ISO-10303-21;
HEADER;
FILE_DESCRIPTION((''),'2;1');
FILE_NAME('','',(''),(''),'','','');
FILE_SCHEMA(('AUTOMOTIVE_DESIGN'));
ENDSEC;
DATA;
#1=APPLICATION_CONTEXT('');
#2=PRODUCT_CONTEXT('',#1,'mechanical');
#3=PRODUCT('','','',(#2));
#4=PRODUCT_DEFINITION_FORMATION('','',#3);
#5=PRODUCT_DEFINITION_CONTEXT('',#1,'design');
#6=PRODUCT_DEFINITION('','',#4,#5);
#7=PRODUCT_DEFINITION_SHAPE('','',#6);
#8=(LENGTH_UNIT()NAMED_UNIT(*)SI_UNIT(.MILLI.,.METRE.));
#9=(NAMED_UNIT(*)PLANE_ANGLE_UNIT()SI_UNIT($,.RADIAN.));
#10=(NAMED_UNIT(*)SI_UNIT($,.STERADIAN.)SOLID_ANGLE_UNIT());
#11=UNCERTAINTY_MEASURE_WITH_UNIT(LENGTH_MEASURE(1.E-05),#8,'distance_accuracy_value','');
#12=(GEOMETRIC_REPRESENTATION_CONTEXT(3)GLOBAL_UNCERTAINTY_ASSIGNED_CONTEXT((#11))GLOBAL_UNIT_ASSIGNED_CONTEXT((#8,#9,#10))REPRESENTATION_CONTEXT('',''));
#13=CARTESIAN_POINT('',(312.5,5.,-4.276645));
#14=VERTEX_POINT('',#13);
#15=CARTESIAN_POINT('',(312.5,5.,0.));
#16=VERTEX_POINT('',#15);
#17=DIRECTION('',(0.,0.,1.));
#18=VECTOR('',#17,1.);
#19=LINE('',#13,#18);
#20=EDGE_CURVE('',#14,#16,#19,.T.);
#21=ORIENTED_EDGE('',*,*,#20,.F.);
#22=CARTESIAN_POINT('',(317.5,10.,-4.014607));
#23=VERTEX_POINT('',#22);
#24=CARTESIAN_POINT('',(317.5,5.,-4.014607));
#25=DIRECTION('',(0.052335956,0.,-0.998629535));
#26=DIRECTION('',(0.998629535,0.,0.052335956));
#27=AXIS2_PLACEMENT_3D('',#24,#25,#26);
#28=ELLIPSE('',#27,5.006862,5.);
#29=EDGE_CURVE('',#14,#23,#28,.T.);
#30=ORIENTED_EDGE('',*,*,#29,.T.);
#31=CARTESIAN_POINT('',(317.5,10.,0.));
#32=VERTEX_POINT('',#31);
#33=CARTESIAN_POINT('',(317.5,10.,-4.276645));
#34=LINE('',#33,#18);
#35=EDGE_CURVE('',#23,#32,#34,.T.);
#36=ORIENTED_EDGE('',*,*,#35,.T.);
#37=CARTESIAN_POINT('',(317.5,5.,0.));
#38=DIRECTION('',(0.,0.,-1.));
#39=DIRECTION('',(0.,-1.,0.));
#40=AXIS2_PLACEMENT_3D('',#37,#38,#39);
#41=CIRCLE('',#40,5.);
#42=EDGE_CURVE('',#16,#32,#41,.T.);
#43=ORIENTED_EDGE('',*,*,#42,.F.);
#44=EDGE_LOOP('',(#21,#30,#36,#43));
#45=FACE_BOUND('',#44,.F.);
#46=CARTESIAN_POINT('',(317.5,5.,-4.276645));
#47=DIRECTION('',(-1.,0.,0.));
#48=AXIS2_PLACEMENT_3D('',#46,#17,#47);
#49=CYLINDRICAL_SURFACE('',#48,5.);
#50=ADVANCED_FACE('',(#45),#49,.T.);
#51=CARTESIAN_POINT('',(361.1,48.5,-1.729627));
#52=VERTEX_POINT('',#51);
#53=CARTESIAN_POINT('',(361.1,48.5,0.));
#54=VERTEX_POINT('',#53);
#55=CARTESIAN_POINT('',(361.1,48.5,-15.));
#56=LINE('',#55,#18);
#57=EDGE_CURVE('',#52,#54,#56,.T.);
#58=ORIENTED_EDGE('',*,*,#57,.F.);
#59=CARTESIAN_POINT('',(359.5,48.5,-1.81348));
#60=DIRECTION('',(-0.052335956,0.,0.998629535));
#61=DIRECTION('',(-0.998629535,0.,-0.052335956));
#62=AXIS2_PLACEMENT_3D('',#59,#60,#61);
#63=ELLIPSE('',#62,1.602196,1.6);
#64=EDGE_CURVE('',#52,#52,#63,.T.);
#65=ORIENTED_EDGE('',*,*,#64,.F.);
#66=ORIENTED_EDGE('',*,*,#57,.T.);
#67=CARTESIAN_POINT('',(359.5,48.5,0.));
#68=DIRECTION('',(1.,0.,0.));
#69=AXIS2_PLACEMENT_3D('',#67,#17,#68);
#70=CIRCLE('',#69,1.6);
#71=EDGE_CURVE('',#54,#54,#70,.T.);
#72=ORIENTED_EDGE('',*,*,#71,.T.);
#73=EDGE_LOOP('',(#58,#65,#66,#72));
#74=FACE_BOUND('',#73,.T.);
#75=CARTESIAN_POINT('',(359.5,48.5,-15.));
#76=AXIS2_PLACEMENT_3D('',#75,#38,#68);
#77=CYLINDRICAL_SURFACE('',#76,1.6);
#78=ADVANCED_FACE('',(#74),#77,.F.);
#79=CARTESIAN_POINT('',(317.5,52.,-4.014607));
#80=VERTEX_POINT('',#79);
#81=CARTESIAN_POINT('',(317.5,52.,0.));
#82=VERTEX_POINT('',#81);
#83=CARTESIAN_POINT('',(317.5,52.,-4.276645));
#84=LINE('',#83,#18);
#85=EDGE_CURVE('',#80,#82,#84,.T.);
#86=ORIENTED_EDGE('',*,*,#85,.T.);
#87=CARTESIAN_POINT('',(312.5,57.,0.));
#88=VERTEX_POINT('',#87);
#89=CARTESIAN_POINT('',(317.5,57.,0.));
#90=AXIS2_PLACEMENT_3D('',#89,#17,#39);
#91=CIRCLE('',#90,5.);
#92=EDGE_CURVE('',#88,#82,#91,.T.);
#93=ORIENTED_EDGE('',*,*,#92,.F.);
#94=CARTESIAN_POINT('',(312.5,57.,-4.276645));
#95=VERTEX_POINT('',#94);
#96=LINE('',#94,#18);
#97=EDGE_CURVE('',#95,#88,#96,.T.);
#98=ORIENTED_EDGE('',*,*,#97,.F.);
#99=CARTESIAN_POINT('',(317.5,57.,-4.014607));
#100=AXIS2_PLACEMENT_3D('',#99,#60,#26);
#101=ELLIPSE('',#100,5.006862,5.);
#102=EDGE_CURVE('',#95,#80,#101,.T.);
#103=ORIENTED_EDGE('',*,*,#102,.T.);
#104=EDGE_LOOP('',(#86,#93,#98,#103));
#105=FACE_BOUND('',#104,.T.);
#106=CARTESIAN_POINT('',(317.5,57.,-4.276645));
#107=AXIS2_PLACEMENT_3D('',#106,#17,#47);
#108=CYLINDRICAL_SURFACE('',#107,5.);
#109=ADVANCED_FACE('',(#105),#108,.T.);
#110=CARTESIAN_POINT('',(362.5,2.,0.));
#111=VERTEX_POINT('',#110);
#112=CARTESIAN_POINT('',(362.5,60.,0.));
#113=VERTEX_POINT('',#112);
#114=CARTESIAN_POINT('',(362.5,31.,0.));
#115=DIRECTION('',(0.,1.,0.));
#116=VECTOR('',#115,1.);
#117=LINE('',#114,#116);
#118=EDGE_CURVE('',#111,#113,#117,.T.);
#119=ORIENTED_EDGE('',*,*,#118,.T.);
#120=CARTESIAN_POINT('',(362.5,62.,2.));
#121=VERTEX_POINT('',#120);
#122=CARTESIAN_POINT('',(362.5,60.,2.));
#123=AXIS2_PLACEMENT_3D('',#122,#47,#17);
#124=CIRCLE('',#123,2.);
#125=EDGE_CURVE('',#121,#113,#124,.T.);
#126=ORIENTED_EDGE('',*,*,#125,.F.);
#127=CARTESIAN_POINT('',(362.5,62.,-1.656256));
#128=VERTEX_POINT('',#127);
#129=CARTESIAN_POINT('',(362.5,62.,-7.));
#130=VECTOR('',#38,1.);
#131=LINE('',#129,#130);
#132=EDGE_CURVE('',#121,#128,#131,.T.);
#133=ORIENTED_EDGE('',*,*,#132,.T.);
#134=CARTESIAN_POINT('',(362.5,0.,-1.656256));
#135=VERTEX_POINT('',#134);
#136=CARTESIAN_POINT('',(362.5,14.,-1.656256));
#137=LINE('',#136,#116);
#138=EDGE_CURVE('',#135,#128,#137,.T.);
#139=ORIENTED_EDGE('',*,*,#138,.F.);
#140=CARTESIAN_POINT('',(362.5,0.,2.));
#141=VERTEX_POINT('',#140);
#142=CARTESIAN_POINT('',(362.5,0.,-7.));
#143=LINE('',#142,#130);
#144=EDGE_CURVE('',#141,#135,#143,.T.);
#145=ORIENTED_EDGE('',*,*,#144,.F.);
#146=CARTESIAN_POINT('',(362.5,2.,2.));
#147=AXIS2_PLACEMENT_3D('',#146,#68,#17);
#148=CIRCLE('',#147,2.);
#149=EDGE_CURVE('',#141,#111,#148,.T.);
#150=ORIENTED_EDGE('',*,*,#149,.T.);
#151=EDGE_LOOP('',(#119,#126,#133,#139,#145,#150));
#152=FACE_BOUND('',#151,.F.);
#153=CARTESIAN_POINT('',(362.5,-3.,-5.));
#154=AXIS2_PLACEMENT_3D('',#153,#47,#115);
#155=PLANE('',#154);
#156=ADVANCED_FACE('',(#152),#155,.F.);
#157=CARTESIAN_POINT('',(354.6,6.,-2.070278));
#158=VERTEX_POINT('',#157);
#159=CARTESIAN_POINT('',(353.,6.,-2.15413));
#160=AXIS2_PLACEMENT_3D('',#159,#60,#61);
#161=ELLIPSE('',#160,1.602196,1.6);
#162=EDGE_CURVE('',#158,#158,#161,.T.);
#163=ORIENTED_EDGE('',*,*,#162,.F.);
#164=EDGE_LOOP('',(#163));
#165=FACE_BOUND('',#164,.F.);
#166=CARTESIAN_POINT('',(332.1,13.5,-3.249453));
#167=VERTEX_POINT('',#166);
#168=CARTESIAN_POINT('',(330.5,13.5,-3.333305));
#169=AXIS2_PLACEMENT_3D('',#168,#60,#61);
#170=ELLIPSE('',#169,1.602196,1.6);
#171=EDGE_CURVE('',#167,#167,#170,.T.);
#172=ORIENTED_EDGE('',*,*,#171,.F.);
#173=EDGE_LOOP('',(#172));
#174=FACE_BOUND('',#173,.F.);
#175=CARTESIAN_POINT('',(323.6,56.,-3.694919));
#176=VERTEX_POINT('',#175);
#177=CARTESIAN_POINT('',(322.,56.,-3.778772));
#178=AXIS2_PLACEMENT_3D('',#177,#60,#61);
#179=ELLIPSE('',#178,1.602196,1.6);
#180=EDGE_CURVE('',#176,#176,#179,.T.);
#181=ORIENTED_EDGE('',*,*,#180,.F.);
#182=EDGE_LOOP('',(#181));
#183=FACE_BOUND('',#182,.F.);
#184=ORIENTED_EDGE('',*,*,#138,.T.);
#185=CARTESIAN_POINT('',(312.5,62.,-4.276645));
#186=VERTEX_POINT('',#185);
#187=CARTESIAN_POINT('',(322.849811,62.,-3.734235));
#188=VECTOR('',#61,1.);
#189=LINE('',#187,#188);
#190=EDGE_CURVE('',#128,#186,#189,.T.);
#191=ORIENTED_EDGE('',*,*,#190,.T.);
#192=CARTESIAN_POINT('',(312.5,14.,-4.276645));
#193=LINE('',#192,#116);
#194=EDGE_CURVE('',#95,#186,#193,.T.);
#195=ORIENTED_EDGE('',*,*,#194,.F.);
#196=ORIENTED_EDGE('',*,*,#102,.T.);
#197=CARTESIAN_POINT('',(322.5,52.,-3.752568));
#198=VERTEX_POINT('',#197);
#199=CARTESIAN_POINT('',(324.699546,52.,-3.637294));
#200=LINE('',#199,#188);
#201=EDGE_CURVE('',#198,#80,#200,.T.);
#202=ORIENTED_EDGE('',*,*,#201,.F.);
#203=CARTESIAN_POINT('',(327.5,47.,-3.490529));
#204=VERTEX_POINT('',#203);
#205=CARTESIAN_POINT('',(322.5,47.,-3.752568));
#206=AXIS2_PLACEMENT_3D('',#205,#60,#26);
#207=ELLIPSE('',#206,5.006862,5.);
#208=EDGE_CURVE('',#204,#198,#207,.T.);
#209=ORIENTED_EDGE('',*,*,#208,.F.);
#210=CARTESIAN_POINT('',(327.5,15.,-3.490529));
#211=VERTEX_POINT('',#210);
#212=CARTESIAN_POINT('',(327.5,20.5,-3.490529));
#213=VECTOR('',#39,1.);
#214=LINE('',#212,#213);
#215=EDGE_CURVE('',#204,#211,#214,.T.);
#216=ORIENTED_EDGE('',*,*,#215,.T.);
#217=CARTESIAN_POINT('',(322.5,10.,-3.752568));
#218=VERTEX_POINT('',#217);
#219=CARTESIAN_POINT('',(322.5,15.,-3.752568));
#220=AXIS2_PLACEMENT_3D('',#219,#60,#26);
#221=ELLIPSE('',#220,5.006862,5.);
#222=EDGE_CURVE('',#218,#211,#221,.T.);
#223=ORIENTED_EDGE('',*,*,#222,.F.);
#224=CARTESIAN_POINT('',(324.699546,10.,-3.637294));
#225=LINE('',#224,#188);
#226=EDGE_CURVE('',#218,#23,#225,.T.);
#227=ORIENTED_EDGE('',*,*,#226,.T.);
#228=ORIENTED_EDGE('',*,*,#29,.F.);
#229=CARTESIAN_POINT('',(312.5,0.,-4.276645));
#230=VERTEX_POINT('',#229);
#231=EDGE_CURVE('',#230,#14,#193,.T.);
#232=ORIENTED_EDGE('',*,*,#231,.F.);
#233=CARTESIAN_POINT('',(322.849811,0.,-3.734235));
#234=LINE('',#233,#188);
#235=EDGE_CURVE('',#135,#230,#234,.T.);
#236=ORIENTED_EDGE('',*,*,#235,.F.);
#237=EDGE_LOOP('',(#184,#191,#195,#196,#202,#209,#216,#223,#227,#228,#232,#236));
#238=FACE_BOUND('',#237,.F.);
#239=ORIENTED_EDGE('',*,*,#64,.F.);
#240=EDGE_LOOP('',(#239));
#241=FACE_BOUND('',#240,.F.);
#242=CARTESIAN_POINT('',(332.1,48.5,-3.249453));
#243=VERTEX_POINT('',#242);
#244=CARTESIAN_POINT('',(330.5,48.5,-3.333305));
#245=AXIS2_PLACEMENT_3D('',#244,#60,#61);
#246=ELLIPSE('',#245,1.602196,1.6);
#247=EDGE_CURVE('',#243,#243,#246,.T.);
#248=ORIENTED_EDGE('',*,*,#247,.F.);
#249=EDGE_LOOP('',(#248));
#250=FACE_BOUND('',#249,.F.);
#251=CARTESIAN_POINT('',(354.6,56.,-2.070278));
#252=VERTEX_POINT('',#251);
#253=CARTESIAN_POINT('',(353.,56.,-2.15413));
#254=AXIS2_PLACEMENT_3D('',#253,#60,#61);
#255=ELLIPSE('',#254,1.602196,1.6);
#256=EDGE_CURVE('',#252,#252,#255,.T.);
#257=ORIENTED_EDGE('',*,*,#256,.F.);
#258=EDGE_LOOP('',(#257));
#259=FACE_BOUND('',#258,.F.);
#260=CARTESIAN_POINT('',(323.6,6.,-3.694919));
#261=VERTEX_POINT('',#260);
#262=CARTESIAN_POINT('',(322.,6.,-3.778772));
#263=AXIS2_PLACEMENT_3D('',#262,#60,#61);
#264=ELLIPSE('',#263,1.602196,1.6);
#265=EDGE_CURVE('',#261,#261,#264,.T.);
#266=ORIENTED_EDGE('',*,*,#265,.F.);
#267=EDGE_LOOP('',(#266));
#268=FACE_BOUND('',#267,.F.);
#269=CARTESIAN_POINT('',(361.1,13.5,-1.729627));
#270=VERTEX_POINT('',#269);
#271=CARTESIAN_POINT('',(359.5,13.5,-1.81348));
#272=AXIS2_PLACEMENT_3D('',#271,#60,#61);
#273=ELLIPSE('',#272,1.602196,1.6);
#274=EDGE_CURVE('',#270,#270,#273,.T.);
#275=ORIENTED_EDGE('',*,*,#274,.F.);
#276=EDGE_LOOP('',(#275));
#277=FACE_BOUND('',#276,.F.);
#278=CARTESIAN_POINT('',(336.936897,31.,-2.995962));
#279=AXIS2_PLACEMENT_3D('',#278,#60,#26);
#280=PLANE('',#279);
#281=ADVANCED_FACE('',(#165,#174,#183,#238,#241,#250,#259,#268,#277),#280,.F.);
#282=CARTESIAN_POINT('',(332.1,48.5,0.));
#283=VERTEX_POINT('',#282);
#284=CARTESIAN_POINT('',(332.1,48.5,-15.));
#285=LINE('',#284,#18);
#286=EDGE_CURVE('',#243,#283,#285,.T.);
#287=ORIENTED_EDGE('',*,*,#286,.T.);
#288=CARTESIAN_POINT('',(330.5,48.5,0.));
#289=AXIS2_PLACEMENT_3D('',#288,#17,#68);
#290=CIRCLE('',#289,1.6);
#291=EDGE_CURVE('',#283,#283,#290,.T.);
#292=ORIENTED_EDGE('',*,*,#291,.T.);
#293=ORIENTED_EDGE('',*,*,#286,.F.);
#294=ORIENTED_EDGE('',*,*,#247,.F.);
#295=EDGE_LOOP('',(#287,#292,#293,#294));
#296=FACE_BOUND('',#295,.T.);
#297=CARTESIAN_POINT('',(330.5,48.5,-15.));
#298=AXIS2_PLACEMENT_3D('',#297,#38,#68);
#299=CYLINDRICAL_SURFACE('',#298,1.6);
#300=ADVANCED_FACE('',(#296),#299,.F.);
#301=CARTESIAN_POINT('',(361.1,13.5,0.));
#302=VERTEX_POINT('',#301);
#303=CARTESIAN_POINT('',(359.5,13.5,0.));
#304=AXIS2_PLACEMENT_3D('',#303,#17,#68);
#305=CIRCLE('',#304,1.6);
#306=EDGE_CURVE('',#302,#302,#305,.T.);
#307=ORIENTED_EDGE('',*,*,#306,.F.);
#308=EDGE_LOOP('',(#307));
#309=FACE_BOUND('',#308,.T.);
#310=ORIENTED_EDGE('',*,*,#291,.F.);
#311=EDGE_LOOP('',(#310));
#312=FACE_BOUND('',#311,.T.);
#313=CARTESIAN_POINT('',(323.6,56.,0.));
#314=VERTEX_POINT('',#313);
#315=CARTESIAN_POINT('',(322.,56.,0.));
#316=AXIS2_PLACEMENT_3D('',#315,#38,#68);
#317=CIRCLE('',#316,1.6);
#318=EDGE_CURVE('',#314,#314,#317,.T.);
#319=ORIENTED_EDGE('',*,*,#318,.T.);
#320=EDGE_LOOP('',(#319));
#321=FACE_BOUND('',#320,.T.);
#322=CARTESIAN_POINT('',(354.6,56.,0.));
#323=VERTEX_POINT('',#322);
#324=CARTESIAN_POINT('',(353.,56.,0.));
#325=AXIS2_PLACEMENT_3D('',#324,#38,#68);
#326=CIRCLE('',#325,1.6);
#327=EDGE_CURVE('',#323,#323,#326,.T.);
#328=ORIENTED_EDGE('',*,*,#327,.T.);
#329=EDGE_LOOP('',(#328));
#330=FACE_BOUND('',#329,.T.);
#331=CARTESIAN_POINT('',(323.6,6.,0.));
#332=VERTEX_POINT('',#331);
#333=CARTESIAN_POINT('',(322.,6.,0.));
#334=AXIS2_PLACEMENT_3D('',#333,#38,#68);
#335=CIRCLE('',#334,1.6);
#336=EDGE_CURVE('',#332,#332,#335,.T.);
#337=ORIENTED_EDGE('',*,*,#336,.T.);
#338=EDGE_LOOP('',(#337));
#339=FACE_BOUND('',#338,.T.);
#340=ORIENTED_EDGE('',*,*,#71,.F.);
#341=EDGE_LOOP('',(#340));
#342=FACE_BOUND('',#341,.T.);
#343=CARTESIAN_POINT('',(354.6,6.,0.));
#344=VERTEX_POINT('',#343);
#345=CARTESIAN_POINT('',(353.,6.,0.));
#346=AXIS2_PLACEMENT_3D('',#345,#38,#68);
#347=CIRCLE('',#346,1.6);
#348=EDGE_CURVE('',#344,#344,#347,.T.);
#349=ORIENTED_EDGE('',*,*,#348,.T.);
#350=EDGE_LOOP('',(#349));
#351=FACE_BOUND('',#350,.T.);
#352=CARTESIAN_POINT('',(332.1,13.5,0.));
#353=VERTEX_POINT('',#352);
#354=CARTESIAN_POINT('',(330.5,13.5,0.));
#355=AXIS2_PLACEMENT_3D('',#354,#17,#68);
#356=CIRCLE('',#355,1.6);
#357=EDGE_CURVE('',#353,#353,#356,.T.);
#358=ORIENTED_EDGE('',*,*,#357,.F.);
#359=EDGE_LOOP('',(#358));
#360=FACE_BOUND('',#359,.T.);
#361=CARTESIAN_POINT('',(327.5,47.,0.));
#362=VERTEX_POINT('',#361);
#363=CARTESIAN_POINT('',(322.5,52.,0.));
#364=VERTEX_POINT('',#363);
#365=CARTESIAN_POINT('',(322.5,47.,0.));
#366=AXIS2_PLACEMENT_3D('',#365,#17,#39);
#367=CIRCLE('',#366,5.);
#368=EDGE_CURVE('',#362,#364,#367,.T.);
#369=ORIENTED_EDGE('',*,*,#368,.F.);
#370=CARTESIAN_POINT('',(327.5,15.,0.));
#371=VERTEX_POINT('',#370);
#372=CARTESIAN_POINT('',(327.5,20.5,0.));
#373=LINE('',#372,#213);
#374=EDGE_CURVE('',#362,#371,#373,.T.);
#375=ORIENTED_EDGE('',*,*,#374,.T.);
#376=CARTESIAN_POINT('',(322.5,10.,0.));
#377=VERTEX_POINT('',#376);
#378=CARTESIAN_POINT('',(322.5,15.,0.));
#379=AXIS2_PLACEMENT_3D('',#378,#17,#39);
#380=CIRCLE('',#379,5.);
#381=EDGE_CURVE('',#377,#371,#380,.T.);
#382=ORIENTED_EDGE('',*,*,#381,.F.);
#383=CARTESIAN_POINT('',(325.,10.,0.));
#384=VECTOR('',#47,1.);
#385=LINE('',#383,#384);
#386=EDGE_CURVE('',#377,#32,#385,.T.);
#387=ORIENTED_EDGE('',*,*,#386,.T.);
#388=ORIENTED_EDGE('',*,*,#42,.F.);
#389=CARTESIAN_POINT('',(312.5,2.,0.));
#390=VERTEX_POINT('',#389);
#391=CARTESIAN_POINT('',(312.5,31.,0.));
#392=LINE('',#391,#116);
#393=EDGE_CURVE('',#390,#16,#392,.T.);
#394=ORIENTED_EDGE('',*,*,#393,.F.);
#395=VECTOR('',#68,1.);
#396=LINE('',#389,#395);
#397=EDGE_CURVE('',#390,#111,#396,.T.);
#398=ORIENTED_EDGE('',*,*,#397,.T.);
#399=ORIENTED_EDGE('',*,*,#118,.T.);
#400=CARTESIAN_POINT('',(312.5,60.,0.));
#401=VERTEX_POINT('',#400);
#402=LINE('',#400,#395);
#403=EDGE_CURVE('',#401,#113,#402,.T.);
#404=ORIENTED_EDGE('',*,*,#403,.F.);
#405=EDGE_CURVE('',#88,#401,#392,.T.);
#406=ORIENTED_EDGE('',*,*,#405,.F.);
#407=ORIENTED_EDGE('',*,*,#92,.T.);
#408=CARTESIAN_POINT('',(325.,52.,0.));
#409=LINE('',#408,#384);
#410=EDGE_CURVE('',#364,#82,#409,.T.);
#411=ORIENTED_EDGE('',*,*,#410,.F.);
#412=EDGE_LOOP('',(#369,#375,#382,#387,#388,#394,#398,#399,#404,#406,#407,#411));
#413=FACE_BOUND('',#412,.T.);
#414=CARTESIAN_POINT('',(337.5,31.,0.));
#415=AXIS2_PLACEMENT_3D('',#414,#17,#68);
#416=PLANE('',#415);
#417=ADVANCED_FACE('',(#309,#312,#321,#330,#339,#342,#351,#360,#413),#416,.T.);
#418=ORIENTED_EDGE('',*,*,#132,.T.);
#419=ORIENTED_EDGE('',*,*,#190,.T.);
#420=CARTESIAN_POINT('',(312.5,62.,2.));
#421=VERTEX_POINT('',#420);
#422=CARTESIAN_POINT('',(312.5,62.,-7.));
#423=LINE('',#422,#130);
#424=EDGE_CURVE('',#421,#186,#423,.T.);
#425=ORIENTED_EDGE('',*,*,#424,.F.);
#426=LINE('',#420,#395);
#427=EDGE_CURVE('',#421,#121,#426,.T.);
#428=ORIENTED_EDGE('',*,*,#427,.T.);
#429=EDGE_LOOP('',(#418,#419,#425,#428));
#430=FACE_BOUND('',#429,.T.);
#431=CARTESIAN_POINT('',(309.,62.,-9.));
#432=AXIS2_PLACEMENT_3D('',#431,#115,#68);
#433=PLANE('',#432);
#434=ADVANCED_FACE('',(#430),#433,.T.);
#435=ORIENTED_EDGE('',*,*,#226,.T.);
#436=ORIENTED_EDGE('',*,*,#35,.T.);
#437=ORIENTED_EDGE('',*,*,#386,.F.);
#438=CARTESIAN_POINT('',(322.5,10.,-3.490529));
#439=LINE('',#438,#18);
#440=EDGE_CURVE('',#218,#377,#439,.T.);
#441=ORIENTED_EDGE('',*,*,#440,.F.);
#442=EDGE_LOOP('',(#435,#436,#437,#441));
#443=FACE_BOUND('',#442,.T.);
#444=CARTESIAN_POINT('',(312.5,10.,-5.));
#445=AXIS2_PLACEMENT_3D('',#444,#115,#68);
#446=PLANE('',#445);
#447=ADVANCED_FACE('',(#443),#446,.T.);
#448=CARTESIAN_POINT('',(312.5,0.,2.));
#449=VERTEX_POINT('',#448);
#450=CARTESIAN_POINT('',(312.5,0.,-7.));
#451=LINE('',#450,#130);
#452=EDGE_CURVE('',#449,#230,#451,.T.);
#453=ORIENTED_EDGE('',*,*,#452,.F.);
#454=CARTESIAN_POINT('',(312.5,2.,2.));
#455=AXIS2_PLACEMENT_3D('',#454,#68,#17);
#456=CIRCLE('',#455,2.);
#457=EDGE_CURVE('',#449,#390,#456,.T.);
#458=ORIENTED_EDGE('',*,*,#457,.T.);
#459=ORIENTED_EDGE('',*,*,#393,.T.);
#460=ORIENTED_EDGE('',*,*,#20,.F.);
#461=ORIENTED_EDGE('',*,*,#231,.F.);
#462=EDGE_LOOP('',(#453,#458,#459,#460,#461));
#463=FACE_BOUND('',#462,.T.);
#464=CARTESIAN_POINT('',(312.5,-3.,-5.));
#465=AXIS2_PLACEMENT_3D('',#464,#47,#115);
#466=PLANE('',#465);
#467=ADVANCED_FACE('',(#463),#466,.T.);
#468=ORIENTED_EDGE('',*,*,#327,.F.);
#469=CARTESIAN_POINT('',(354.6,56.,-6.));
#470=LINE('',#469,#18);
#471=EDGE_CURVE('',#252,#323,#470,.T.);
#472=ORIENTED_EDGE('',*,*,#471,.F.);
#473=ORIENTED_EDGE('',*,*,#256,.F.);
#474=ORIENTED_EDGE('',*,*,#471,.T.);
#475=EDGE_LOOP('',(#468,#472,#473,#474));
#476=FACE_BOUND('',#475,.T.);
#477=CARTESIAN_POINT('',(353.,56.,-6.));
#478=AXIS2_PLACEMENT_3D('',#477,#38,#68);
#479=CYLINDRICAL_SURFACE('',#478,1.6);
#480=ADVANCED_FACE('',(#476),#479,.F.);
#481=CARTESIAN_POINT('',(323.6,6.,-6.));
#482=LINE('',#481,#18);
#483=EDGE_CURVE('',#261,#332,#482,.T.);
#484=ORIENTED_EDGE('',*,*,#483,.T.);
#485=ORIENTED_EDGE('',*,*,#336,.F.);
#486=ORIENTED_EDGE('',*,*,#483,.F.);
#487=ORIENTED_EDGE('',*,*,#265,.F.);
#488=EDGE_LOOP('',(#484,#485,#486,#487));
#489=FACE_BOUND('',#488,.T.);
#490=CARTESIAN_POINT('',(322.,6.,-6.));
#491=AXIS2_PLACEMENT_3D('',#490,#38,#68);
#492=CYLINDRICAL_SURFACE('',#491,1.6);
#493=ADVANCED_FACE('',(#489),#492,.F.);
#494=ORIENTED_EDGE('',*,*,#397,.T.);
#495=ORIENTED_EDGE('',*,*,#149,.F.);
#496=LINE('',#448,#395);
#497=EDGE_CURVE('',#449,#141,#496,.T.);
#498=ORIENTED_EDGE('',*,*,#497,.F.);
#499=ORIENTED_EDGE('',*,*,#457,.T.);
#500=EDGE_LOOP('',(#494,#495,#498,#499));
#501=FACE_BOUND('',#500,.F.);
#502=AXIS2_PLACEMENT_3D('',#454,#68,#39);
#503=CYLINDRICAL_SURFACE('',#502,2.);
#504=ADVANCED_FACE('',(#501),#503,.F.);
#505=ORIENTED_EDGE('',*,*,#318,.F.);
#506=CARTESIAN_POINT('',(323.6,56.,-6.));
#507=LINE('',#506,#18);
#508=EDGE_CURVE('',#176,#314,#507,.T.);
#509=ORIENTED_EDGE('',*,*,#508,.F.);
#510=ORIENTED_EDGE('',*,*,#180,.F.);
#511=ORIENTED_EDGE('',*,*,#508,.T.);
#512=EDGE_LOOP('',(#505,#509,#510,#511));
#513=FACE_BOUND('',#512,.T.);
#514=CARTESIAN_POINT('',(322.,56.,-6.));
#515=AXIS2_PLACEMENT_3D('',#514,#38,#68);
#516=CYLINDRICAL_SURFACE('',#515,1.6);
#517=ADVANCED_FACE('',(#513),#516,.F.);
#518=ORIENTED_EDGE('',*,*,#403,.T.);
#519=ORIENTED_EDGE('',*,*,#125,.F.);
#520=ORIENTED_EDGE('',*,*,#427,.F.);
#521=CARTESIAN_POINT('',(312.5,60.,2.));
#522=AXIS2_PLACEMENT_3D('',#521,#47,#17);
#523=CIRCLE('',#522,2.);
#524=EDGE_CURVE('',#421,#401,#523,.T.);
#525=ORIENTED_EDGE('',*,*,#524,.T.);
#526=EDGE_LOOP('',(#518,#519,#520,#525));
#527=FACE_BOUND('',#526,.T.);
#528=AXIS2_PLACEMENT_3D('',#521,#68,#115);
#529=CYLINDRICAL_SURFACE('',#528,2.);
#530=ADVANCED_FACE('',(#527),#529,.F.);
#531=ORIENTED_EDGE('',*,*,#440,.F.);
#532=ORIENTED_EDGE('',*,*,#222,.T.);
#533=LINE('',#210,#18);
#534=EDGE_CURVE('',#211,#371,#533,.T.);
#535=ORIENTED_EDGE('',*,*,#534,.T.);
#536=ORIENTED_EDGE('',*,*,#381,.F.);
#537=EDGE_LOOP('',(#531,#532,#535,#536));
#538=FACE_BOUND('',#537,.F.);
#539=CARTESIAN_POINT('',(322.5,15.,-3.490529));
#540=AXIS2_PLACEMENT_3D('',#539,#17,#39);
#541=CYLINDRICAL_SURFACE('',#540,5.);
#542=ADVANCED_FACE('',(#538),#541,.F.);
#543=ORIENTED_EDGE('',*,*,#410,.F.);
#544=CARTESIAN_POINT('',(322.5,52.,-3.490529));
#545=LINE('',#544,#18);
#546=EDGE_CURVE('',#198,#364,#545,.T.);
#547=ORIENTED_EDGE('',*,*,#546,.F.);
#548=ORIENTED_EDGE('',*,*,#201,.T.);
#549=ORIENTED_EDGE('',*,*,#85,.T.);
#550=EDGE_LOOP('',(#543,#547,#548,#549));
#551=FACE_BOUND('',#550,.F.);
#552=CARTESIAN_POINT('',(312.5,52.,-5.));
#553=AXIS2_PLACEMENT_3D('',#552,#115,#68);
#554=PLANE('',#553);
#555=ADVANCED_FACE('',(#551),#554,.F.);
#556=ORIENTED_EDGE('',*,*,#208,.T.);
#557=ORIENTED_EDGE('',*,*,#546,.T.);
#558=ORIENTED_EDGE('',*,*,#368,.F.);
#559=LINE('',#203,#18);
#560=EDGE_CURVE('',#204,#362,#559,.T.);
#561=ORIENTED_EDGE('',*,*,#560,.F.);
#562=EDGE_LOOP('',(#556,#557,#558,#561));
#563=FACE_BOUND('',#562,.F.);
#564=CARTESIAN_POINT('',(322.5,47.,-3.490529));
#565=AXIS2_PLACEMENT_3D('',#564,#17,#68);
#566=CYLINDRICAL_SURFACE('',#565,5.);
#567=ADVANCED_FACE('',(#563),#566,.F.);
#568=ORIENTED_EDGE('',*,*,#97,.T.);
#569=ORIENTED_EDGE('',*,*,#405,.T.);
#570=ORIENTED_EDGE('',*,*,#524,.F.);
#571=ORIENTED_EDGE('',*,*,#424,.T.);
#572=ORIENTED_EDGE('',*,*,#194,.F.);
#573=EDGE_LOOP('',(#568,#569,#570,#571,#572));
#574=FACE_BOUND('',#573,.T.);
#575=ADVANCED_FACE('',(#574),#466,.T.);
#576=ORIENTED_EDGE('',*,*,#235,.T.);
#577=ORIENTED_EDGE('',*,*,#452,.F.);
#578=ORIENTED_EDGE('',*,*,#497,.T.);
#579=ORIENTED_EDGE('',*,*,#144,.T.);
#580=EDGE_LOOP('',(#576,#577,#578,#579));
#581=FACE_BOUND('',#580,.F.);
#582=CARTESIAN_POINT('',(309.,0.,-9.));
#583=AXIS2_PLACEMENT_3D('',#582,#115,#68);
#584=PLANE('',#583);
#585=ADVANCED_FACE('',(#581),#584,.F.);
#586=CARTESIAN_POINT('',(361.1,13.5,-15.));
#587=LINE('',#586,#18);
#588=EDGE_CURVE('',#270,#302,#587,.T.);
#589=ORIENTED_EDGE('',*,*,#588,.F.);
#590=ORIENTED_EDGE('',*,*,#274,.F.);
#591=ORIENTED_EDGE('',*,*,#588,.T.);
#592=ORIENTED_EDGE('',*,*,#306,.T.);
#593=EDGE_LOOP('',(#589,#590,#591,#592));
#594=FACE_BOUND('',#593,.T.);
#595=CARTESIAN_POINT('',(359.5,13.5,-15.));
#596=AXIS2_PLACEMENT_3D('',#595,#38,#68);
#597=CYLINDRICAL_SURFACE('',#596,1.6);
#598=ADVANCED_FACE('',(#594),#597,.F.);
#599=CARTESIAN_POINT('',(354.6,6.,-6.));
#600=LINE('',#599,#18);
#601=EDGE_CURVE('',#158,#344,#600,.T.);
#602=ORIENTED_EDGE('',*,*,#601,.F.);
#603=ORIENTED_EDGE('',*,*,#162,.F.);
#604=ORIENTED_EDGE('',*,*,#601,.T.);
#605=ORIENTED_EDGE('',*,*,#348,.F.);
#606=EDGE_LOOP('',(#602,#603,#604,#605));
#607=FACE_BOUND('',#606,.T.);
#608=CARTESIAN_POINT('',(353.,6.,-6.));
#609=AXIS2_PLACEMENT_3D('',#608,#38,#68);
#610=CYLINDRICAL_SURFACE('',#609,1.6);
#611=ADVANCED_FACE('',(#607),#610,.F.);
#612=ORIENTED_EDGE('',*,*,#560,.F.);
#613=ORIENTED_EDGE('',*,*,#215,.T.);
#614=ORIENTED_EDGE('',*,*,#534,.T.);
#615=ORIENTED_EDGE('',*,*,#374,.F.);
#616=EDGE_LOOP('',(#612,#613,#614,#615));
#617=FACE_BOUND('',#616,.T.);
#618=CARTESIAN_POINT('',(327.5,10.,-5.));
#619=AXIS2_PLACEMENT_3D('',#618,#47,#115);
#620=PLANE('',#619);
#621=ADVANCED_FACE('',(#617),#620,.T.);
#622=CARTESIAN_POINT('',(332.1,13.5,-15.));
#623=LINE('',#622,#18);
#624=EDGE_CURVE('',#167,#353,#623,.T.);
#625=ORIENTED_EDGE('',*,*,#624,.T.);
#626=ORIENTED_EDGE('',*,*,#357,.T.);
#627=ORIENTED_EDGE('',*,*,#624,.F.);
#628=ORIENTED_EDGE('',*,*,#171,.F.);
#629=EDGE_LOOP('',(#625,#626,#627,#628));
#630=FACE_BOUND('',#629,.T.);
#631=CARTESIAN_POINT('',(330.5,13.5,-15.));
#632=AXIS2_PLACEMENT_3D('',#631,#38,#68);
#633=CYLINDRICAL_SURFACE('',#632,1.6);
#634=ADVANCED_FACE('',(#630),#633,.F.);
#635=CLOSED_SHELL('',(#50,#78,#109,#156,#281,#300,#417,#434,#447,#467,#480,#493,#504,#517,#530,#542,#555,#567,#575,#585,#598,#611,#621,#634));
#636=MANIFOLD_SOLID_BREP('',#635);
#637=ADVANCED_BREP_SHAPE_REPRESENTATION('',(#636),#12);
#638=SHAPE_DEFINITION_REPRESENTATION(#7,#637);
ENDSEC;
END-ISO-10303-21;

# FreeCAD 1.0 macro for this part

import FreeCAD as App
import Part
import Sketcher


def edges_at(feature, points):
    """Names of the edges that pass closest to the given points."""
    edges = feature.Shape.Edges
    near = lambda p: min(range(len(edges)), key=lambda i: edges[i].distToShape(Part.Vertex(*p))[0])
    return sorted({f"Edge{near(p) + 1}" for p in points})


def add_polygon(sketch, points):
    """Adds a closed chain of lines whose ends are joined by coincident constraints."""
    first, n = sketch.GeometryCount, len(points)
    for a, b in zip(points, points[1:] + points[:1]):
        sketch.addGeometry(Part.LineSegment(App.Vector(*a, 0), App.Vector(*b, 0)), False)
    for i in range(n):
        sketch.addConstraint(Sketcher.Constraint("Coincident", first + i, 2, first + (i + 1) % n, 1))

doc = App.newDocument("Part")
body = doc.addObject("PartDesign::Body", "Body")

sketch1 = doc.addObject("Sketcher::SketchObject", "Sketch")
body.addObject(sketch1)
sketch1.AttachmentSupport = (doc.XY_Plane, [""])
sketch1.MapMode = "FlatFace"
sketch1.AttachmentOffset = App.Placement(App.Vector(0, 0, -6), App.Rotation())
sketch1.addGeometry(Part.Circle(App.Vector(320, 6, 0), App.Vector(0, 0, 1), 1.6), False)
sketch1.addConstraint([
    Sketcher.Constraint("Diameter", 0, 3.2),
    Sketcher.Constraint("DistanceX", -1, 1, 0, 3, 320.0),
    Sketcher.Constraint("DistanceY", -1, 1, 0, 3, 6.0),
])
pad1 = doc.addObject("PartDesign::Pad", "Pad")
body.addObject(pad1)
pad1.Profile = sketch1
pad1.Length = 10
body2 = doc.addObject("PartDesign::Body", "Body001")
body2.AllowCompound = True

sketch2 = doc.addObject("Sketcher::SketchObject", "Sketch001")
body2.addObject(sketch2)
sketch2.AttachmentSupport = (doc.getObject("XY_Plane001"), [""])
sketch2.MapMode = "FlatFace"
sketch2.AttachmentOffset = App.Placement(App.Vector(0, 0, -6), App.Rotation())
sketch2.addGeometry(Part.Circle(App.Vector(320, 56, 0), App.Vector(0, 0, 1), 1.6), False)
sketch2.addConstraint([
    Sketcher.Constraint("Diameter", 0, 3.2),
    Sketcher.Constraint("DistanceX", -1, 1, 0, 3, 320.0),
    Sketcher.Constraint("DistanceY", -1, 1, 0, 3, 56.0),
])
pad2 = doc.addObject("PartDesign::Pad", "Pad001")
body2.addObject(pad2)
pad2.Profile = sketch2
pad2.Length = 10
doc.recompute()

boolean = doc.addObject("PartDesign::Boolean", "Boolean")
body2.addObject(boolean)
boolean.Type = "Fuse"
boolean.addObjects([body])
body3 = doc.addObject("PartDesign::Body", "Body002")
body3.AllowCompound = True
doc.recompute()

body2.Placement = App.Placement(App.Vector(2, 0, 0), App.Rotation(App.Vector(0, 0, 1), 0))
boolean2 = doc.addObject("PartDesign::Boolean", "Boolean001")
body3.addObject(boolean2)
boolean2.Type = "Fuse"
boolean2.addObjects([body2])
body4 = doc.addObject("PartDesign::Body", "Body003")

sketch3 = doc.addObject("Sketcher::SketchObject", "Sketch002")
body4.addObject(sketch3)
sketch3.AttachmentSupport = (doc.getObject("XY_Plane003"), [""])
sketch3.MapMode = "FlatFace"
sketch3.AttachmentOffset = App.Placement(App.Vector(0, 0, -6), App.Rotation())
sketch3.addGeometry(Part.Circle(App.Vector(320, 6, 0), App.Vector(0, 0, 1), 1.6), False)
sketch3.addConstraint([
    Sketcher.Constraint("Diameter", 0, 3.2),
    Sketcher.Constraint("DistanceX", -1, 1, 0, 3, 320.0),
    Sketcher.Constraint("DistanceY", -1, 1, 0, 3, 6.0),
])
pad3 = doc.addObject("PartDesign::Pad", "Pad002")
body4.addObject(pad3)
pad3.Profile = sketch3
pad3.Length = 10
body5 = doc.addObject("PartDesign::Body", "Body004")
body5.AllowCompound = True

sketch4 = doc.addObject("Sketcher::SketchObject", "Sketch003")
body5.addObject(sketch4)
sketch4.AttachmentSupport = (doc.getObject("XY_Plane004"), [""])
sketch4.MapMode = "FlatFace"
sketch4.AttachmentOffset = App.Placement(App.Vector(0, 0, -6), App.Rotation())
sketch4.addGeometry(Part.Circle(App.Vector(320, 56, 0), App.Vector(0, 0, 1), 1.6), False)
sketch4.addConstraint([
    Sketcher.Constraint("Diameter", 0, 3.2),
    Sketcher.Constraint("DistanceX", -1, 1, 0, 3, 320.0),
    Sketcher.Constraint("DistanceY", -1, 1, 0, 3, 56.0),
])
pad4 = doc.addObject("PartDesign::Pad", "Pad003")
body5.addObject(pad4)
pad4.Profile = sketch4
pad4.Length = 10
doc.recompute()

boolean3 = doc.addObject("PartDesign::Boolean", "Boolean002")
body5.addObject(boolean3)
boolean3.Type = "Fuse"
boolean3.addObjects([body4])
body6 = doc.addObject("PartDesign::Body", "Body005")
body6.AllowCompound = True
doc.recompute()

body5.Placement = App.Placement(App.Vector(33, 0, 0), App.Rotation(App.Vector(0, 0, 1), 0))
boolean4 = doc.addObject("PartDesign::Boolean", "Boolean003")
body6.addObject(boolean4)
boolean4.Type = "Fuse"
boolean4.addObjects([body5])
doc.recompute()

boolean5 = doc.addObject("PartDesign::Boolean", "Boolean004")
body6.addObject(boolean5)
boolean5.Type = "Fuse"
boolean5.addObjects([body3])
body7 = doc.addObject("PartDesign::Body", "Body006")

sketch5 = doc.addObject("Sketcher::SketchObject", "Sketch004")
body7.addObject(sketch5)
sketch5.AttachmentSupport = (doc.getObject("XY_Plane006"), [""])
sketch5.MapMode = "FlatFace"
sketch5.AttachmentOffset = App.Placement(App.Vector(0, 0, -9), App.Rotation())
add_polygon(sketch5, [(309, 0), (309, -10), (371, -10), (371, 0)])
sketch5.addConstraint([
    Sketcher.Constraint("Vertical", 0),
    Sketcher.Constraint("Horizontal", 1),
    Sketcher.Constraint("Vertical", 2),
    Sketcher.Constraint("Horizontal", 3),
    Sketcher.Constraint("PointOnObject", 2, 2, -1),
    Sketcher.Constraint("DistanceX", 1, 1, 1, 2, 62.0),
    Sketcher.Constraint("DistanceY", 0, 2, 0, 1, 10.0),
    Sketcher.Constraint("DistanceX", -1, 1, 0, 2, 309.0),
])
pad5 = doc.addObject("PartDesign::Pad", "Pad004")
body7.addObject(pad5)
pad5.Profile = sketch5
pad5.Length = 29
body8 = doc.addObject("PartDesign::Body", "Body007")
body8.AllowCompound = True

sketch6 = doc.addObject("Sketcher::SketchObject", "Sketch005")
body8.addObject(sketch6)
sketch6.AttachmentSupport = (doc.getObject("XY_Plane007"), [""])
sketch6.MapMode = "FlatFace"
sketch6.AttachmentOffset = App.Placement(App.Vector(0, 0, -9), App.Rotation())
add_polygon(sketch6, [(309, 72), (309, 62), (371, 62), (371, 72)])
sketch6.addConstraint([
    Sketcher.Constraint("Vertical", 0),
    Sketcher.Constraint("Horizontal", 1),
    Sketcher.Constraint("Vertical", 2),
    Sketcher.Constraint("Horizontal", 3),
    Sketcher.Constraint("DistanceX", 1, 1, 1, 2, 62.0),
    Sketcher.Constraint("DistanceY", 0, 2, 0, 1, 10.0),
    Sketcher.Constraint("DistanceX", -1, 1, 0, 2, 309.0),
    Sketcher.Constraint("DistanceY", -1, 1, 0, 2, 62.0),
])
pad6 = doc.addObject("PartDesign::Pad", "Pad005")
body8.addObject(pad6)
pad6.Profile = sketch6
pad6.Length = 29
doc.recompute()

boolean6 = doc.addObject("PartDesign::Boolean", "Boolean005")
body8.addObject(boolean6)
boolean6.Type = "Fuse"
boolean6.addObjects([body7])
body9 = doc.addObject("PartDesign::Body", "Body008")

sketch7 = doc.addObject("Sketcher::SketchObject", "Sketch006")
body9.addObject(sketch7)
sketch7.AttachmentSupport = (doc.getObject("XZ_Plane008"), [""])
sketch7.MapMode = "FlatFace"
sketch7.AttachmentOffset = App.Placement(App.Vector(0, 0, -7), App.Rotation())
sketch7.addGeometry(Part.Circle(App.Vector(355, 10, 0), App.Vector(0, 0, 1), 1.6), False)
sketch7.addConstraint([
    Sketcher.Constraint("Diameter", 0, 3.2),
    Sketcher.Constraint("DistanceX", -1, 1, 0, 3, 355.0),
    Sketcher.Constraint("DistanceY", -1, 1, 0, 3, 10.0),
])
pad7 = doc.addObject("PartDesign::Pad", "Pad006")
body9.addObject(pad7)
pad7.Profile = sketch7
pad7.Length = 10
body10 = doc.addObject("PartDesign::Body", "Body009")
body10.AllowCompound = True

sketch8 = doc.addObject("Sketcher::SketchObject", "Sketch007")
body10.addObject(sketch8)
sketch8.AttachmentSupport = (doc.getObject("XZ_Plane009"), [""])
sketch8.MapMode = "FlatFace"
sketch8.AttachmentOffset = App.Placement(App.Vector(0, 0, -7), App.Rotation())
sketch8.addGeometry(Part.Circle(App.Vector(320, 10, 0), App.Vector(0, 0, 1), 1.6), False)
sketch8.addConstraint([
    Sketcher.Constraint("Diameter", 0, 3.2),
    Sketcher.Constraint("DistanceX", -1, 1, 0, 3, 320.0),
    Sketcher.Constraint("DistanceY", -1, 1, 0, 3, 10.0),
])
pad8 = doc.addObject("PartDesign::Pad", "Pad007")
body10.addObject(pad8)
pad8.Profile = sketch8
pad8.Length = 10
doc.recompute()

boolean7 = doc.addObject("PartDesign::Boolean", "Boolean006")
body10.addObject(boolean7)
boolean7.Type = "Fuse"
boolean7.addObjects([body9])
body11 = doc.addObject("PartDesign::Body", "Body010")

sketch9 = doc.addObject("Sketcher::SketchObject", "Sketch008")
body11.addObject(sketch9)
sketch9.AttachmentSupport = (doc.getObject("XZ_Plane010"), [""])
sketch9.MapMode = "FlatFace"
sketch9.AttachmentOffset = App.Placement(App.Vector(0, 0, -7), App.Rotation())
sketch9.addGeometry(Part.Circle(App.Vector(355, 10, 0), App.Vector(0, 0, 1), 1.6), False)
sketch9.addConstraint([
    Sketcher.Constraint("Diameter", 0, 3.2),
    Sketcher.Constraint("DistanceX", -1, 1, 0, 3, 355.0),
    Sketcher.Constraint("DistanceY", -1, 1, 0, 3, 10.0),
])
pad9 = doc.addObject("PartDesign::Pad", "Pad008")
body11.addObject(pad9)
pad9.Profile = sketch9
pad9.Length = 10
body12 = doc.addObject("PartDesign::Body", "Body011")
body12.AllowCompound = True

sketch10 = doc.addObject("Sketcher::SketchObject", "Sketch009")
body12.addObject(sketch10)
sketch10.AttachmentSupport = (doc.getObject("XZ_Plane011"), [""])
sketch10.MapMode = "FlatFace"
sketch10.AttachmentOffset = App.Placement(App.Vector(0, 0, -7), App.Rotation())
sketch10.addGeometry(Part.Circle(App.Vector(320, 10, 0), App.Vector(0, 0, 1), 1.6), False)
sketch10.addConstraint([
    Sketcher.Constraint("Diameter", 0, 3.2),
    Sketcher.Constraint("DistanceX", -1, 1, 0, 3, 320.0),
    Sketcher.Constraint("DistanceY", -1, 1, 0, 3, 10.0),
])
pad10 = doc.addObject("PartDesign::Pad", "Pad009")
body12.addObject(pad10)
pad10.Profile = sketch10
pad10.Length = 10
doc.recompute()

boolean8 = doc.addObject("PartDesign::Boolean", "Boolean007")
body12.addObject(boolean8)
boolean8.Type = "Fuse"
boolean8.addObjects([body11])
body13 = doc.addObject("PartDesign::Body", "Body012")
body13.AllowCompound = True
doc.recompute()

body12.Placement = App.Placement(App.Vector(0, 58, 0), App.Rotation(App.Vector(0, 0, 1), 0))
boolean9 = doc.addObject("PartDesign::Boolean", "Boolean008")
body13.addObject(boolean9)
boolean9.Type = "Fuse"
boolean9.addObjects([body12])
doc.recompute()

boolean10 = doc.addObject("PartDesign::Boolean", "Boolean009")
body13.addObject(boolean10)
boolean10.Type = "Fuse"
boolean10.addObjects([body10])
body14 = doc.addObject("PartDesign::Body", "Body013")

sketch11 = doc.addObject("Sketcher::SketchObject", "Sketch010")
body14.addObject(sketch11)
sketch11.AttachmentSupport = (doc.getObject("XY_Plane013"), [""])
sketch11.MapMode = "FlatFace"
sketch11.AttachmentOffset = App.Placement(App.Vector(0, 0, -15), App.Rotation())
sketch11.addGeometry(Part.Circle(App.Vector(359.5, 13.5, 0), App.Vector(0, 0, 1), 1.6), False)
sketch11.addConstraint([
    Sketcher.Constraint("Diameter", 0, 3.2),
    Sketcher.Constraint("DistanceX", -1, 1, 0, 3, 359.5),
    Sketcher.Constraint("DistanceY", -1, 1, 0, 3, 13.5),
])
pad11 = doc.addObject("PartDesign::Pad", "Pad010")
body14.addObject(pad11)
pad11.Profile = sketch11
pad11.Length = 15
body15 = doc.addObject("PartDesign::Body", "Body014")
body15.AllowCompound = True

sketch12 = doc.addObject("Sketcher::SketchObject", "Sketch011")
body15.addObject(sketch12)
sketch12.AttachmentSupport = (doc.getObject("XY_Plane014"), [""])
sketch12.MapMode = "FlatFace"
sketch12.AttachmentOffset = App.Placement(App.Vector(0, 0, -15), App.Rotation())
sketch12.addGeometry(Part.Circle(App.Vector(330.5, 13.5, 0), App.Vector(0, 0, 1), 1.6), False)
sketch12.addConstraint([
    Sketcher.Constraint("Diameter", 0, 3.2),
    Sketcher.Constraint("DistanceX", -1, 1, 0, 3, 330.5),
    Sketcher.Constraint("DistanceY", -1, 1, 0, 3, 13.5),
])
pad12 = doc.addObject("PartDesign::Pad", "Pad011")
body15.addObject(pad12)
pad12.Profile = sketch12
pad12.Length = 15
doc.recompute()

boolean11 = doc.addObject("PartDesign::Boolean", "Boolean010")
body15.addObject(boolean11)
boolean11.Type = "Fuse"
boolean11.addObjects([body14])
body16 = doc.addObject("PartDesign::Body", "Body015")

sketch13 = doc.addObject("Sketcher::SketchObject", "Sketch012")
body16.addObject(sketch13)
sketch13.AttachmentSupport = (doc.getObject("XY_Plane015"), [""])
sketch13.MapMode = "FlatFace"
sketch13.AttachmentOffset = App.Placement(App.Vector(0, 0, -15), App.Rotation())
sketch13.addGeometry(Part.Circle(App.Vector(359.5, 13.5, 0), App.Vector(0, 0, 1), 1.6), False)
sketch13.addConstraint([
    Sketcher.Constraint("Diameter", 0, 3.2),
    Sketcher.Constraint("DistanceX", -1, 1, 0, 3, 359.5),
    Sketcher.Constraint("DistanceY", -1, 1, 0, 3, 13.5),
])
pad13 = doc.addObject("PartDesign::Pad", "Pad012")
body16.addObject(pad13)
pad13.Profile = sketch13
pad13.Length = 15
body17 = doc.addObject("PartDesign::Body", "Body016")
body17.AllowCompound = True

sketch14 = doc.addObject("Sketcher::SketchObject", "Sketch013")
body17.addObject(sketch14)
sketch14.AttachmentSupport = (doc.getObject("XY_Plane016"), [""])
sketch14.MapMode = "FlatFace"
sketch14.AttachmentOffset = App.Placement(App.Vector(0, 0, -15), App.Rotation())
sketch14.addGeometry(Part.Circle(App.Vector(330.5, 13.5, 0), App.Vector(0, 0, 1), 1.6), False)
sketch14.addConstraint([
    Sketcher.Constraint("Diameter", 0, 3.2),
    Sketcher.Constraint("DistanceX", -1, 1, 0, 3, 330.5),
    Sketcher.Constraint("DistanceY", -1, 1, 0, 3, 13.5),
])
pad14 = doc.addObject("PartDesign::Pad", "Pad013")
body17.addObject(pad14)
pad14.Profile = sketch14
pad14.Length = 15
doc.recompute()

boolean12 = doc.addObject("PartDesign::Boolean", "Boolean011")
body17.addObject(boolean12)
boolean12.Type = "Fuse"
boolean12.addObjects([body16])
body18 = doc.addObject("PartDesign::Body", "Body017")
body18.AllowCompound = True
doc.recompute()

body17.Placement = App.Placement(App.Vector(0, 35, 0), App.Rotation(App.Vector(0, 0, 1), 0))
boolean13 = doc.addObject("PartDesign::Boolean", "Boolean012")
body18.addObject(boolean13)
boolean13.Type = "Fuse"
boolean13.addObjects([body17])
doc.recompute()

boolean14 = doc.addObject("PartDesign::Boolean", "Boolean013")
body18.addObject(boolean14)
boolean14.Type = "Fuse"
boolean14.addObjects([body15])
body19 = doc.addObject("PartDesign::Body", "Body018")

sketch15 = doc.addObject("Sketcher::SketchObject", "Sketch014")
body19.addObject(sketch15)
sketch15.AttachmentSupport = (doc.getObject("XY_Plane018"), [""])
sketch15.MapMode = "FlatFace"
sketch15.AttachmentOffset = App.Placement(App.Vector(0, 0, -5), App.Rotation())
add_polygon(sketch15, [(312.5, 52), (312.5, 10), (327.5, 10), (327.5, 52)])
sketch15.addConstraint([
    Sketcher.Constraint("Vertical", 0),
    Sketcher.Constraint("Horizontal", 1),
    Sketcher.Constraint("Vertical", 2),
    Sketcher.Constraint("Horizontal", 3),
    Sketcher.Constraint("DistanceX", 1, 1, 1, 2, 15.0),
    Sketcher.Constraint("DistanceY", 0, 2, 0, 1, 42.0),
    Sketcher.Constraint("DistanceY", -1, 1, 0, 2, 10.0),
    Sketcher.Constraint("DistanceX", -1, 1, 0, 2, 312.5),
])
pad15 = doc.addObject("PartDesign::Pad", "Pad014")
body19.addObject(pad15)
pad15.Profile = sketch15
pad15.Length = 20
body20 = doc.addObject("PartDesign::Body", "Body019")

sketch16 = doc.addObject("Sketcher::SketchObject", "Sketch015")
body20.addObject(sketch16)
sketch16.AttachmentSupport = (doc.getObject("XY_Plane019"), [""])
sketch16.MapMode = "FlatFace"
add_polygon(sketch16, [(312.5, 62), (312.5, 0), (362.5, 0), (362.5, 62)])
sketch16.addConstraint([
    Sketcher.Constraint("Vertical", 0),
    Sketcher.Constraint("Horizontal", 1),
    Sketcher.Constraint("Vertical", 2),
    Sketcher.Constraint("Horizontal", 3),
    Sketcher.Constraint("PointOnObject", 0, 2, -1),
    Sketcher.Constraint("DistanceX", 1, 1, 1, 2, 50.0),
    Sketcher.Constraint("DistanceY", 0, 2, 0, 1, 62.0),
    Sketcher.Constraint("DistanceX", -1, 1, 0, 2, 312.5),
])
pad16 = doc.addObject("PartDesign::Pad", "Pad015")
body20.addObject(pad16)
pad16.Profile = sketch16
pad16.Length = 20
doc.recompute()

fillet = doc.addObject("PartDesign::Fillet", "Fillet")
body20.addObject(fillet)
fillet.Base = (pad16, edges_at(pad16, [(337.5, 0, 0), (337.5, 62, 0)]))
fillet.Radius = 2
body21 = doc.addObject("PartDesign::Body", "Body020")

sketch17 = doc.addObject("Sketcher::SketchObject", "Sketch016")
body21.addObject(sketch17)
sketch17.AttachmentSupport = (doc.getObject("XY_Plane020"), [""])
sketch17.MapMode = "FlatFace"
add_polygon(sketch17, [(0, 68), (0, 0), (58, 0), (58, 68)])
sketch17.addConstraint([
    Sketcher.Constraint("Vertical", 0),
    Sketcher.Constraint("Horizontal", 1),
    Sketcher.Constraint("Vertical", 2),
    Sketcher.Constraint("Horizontal", 3),
    Sketcher.Constraint("Coincident", 0, 2, -1, 1),
    Sketcher.Constraint("DistanceX", 1, 1, 1, 2, 58.0),
    Sketcher.Constraint("DistanceY", 0, 2, 0, 1, 68.0),
])
pad17 = doc.addObject("PartDesign::Pad", "Pad016")
body21.addObject(pad17)
pad17.Profile = sketch17
pad17.Length = 10
body22 = doc.addObject("PartDesign::Body", "Body021")
doc.recompute()

body21.Placement = App.Placement(App.Vector(308.5, -3, -14.5), App.Rotation(App.Vector(0, -1, 0), 3))
boolean15 = doc.addObject("PartDesign::Boolean", "Boolean014")
body22.addObject(boolean15)
boolean15.Type = "Fuse"
boolean15.addObjects([body21])
body23 = doc.addObject("PartDesign::Body", "Body022")

sketch18 = doc.addObject("Sketcher::SketchObject", "Sketch017")
body23.addObject(sketch18)
sketch18.AttachmentSupport = (doc.getObject("XY_Plane022"), [""])
sketch18.MapMode = "FlatFace"
sketch18.AttachmentOffset = App.Placement(App.Vector(0, 0, -5), App.Rotation())
add_polygon(sketch18, [(312.5, 65), (312.5, -3), (362.5, -3), (362.5, 65)])
sketch18.addConstraint([
    Sketcher.Constraint("Vertical", 0),
    Sketcher.Constraint("Horizontal", 1),
    Sketcher.Constraint("Vertical", 2),
    Sketcher.Constraint("Horizontal", 3),
    Sketcher.Constraint("DistanceX", 1, 1, 1, 2, 50.0),
    Sketcher.Constraint("DistanceY", 0, 2, 0, 1, 68.0),
    Sketcher.Constraint("DistanceY", 0, 2, -1, 1, 3.0),
    Sketcher.Constraint("DistanceX", -1, 1, 0, 2, 312.5),
])
pad18 = doc.addObject("PartDesign::Pad", "Pad017")
body23.addObject(pad18)
pad18.Profile = sketch18
pad18.Length = 22
doc.recompute()

boolean16 = doc.addObject("PartDesign::Boolean", "Boolean015")
body23.addObject(boolean16)
boolean16.Type = "Cut"
boolean16.addObjects([body22])
doc.recompute()

boolean17 = doc.addObject("PartDesign::Boolean", "Boolean016")
body23.addObject(boolean17)
boolean17.Type = "Cut"
boolean17.addObjects([body20])
doc.recompute()

boolean18 = doc.addObject("PartDesign::Boolean", "Boolean017")
body23.addObject(boolean18)
boolean18.Type = "Cut"
boolean18.addObjects([body19])
doc.recompute()

fillet2 = doc.addObject("PartDesign::Fillet", "Fillet001")
body23.addObject(fillet2)
fillet2.Base = (boolean18, edges_at(boolean18, [(327.5, 10, -1.745), (327.5, 52, -1.745)]))
fillet2.Radius = 5
doc.recompute()

fillet3 = doc.addObject("PartDesign::Fillet", "Fillet002")
body23.addObject(fillet3)
fillet3.Base = (fillet2, edges_at(fillet2, [(337.5, -3, -2.966), (337.5, 65, -2.966)]))
fillet3.Radius = 2
doc.recompute()

fillet4 = doc.addObject("PartDesign::Fillet", "Fillet003")
body23.addObject(fillet4)
fillet4.Base = (fillet3, edges_at(fillet3, [(312.5, 10, -2.138), (312.5, 52, -2.138)]))
fillet4.Radius = 5
doc.recompute()

boolean19 = doc.addObject("PartDesign::Boolean", "Boolean018")
body23.addObject(boolean19)
boolean19.Type = "Cut"
boolean19.addObjects([body18])
doc.recompute()

boolean20 = doc.addObject("PartDesign::Boolean", "Boolean019")
body23.addObject(boolean20)
boolean20.Type = "Cut"
boolean20.addObjects([body13])
doc.recompute()

fillet5 = doc.addObject("PartDesign::Fillet", "Fillet004")
body23.addObject(fillet5)
fillet5.Base = (boolean20, edges_at(boolean20, [
    (312.5, -1.5, 17),
    (362.5, -1.5, 17),
    (362.5, 63.5, 17),
    (312.5, 63.5, 17),
]))
fillet5.Radius = 3
doc.recompute()

boolean21 = doc.addObject("PartDesign::Boolean", "Boolean020")
body23.addObject(boolean21)
boolean21.Type = "Cut"
boolean21.addObjects([body8])
doc.recompute()

boolean22 = doc.addObject("PartDesign::Boolean", "Boolean021")
body23.addObject(boolean22)
boolean22.Type = "Cut"
boolean22.addObjects([body6])

doc.recompute()
